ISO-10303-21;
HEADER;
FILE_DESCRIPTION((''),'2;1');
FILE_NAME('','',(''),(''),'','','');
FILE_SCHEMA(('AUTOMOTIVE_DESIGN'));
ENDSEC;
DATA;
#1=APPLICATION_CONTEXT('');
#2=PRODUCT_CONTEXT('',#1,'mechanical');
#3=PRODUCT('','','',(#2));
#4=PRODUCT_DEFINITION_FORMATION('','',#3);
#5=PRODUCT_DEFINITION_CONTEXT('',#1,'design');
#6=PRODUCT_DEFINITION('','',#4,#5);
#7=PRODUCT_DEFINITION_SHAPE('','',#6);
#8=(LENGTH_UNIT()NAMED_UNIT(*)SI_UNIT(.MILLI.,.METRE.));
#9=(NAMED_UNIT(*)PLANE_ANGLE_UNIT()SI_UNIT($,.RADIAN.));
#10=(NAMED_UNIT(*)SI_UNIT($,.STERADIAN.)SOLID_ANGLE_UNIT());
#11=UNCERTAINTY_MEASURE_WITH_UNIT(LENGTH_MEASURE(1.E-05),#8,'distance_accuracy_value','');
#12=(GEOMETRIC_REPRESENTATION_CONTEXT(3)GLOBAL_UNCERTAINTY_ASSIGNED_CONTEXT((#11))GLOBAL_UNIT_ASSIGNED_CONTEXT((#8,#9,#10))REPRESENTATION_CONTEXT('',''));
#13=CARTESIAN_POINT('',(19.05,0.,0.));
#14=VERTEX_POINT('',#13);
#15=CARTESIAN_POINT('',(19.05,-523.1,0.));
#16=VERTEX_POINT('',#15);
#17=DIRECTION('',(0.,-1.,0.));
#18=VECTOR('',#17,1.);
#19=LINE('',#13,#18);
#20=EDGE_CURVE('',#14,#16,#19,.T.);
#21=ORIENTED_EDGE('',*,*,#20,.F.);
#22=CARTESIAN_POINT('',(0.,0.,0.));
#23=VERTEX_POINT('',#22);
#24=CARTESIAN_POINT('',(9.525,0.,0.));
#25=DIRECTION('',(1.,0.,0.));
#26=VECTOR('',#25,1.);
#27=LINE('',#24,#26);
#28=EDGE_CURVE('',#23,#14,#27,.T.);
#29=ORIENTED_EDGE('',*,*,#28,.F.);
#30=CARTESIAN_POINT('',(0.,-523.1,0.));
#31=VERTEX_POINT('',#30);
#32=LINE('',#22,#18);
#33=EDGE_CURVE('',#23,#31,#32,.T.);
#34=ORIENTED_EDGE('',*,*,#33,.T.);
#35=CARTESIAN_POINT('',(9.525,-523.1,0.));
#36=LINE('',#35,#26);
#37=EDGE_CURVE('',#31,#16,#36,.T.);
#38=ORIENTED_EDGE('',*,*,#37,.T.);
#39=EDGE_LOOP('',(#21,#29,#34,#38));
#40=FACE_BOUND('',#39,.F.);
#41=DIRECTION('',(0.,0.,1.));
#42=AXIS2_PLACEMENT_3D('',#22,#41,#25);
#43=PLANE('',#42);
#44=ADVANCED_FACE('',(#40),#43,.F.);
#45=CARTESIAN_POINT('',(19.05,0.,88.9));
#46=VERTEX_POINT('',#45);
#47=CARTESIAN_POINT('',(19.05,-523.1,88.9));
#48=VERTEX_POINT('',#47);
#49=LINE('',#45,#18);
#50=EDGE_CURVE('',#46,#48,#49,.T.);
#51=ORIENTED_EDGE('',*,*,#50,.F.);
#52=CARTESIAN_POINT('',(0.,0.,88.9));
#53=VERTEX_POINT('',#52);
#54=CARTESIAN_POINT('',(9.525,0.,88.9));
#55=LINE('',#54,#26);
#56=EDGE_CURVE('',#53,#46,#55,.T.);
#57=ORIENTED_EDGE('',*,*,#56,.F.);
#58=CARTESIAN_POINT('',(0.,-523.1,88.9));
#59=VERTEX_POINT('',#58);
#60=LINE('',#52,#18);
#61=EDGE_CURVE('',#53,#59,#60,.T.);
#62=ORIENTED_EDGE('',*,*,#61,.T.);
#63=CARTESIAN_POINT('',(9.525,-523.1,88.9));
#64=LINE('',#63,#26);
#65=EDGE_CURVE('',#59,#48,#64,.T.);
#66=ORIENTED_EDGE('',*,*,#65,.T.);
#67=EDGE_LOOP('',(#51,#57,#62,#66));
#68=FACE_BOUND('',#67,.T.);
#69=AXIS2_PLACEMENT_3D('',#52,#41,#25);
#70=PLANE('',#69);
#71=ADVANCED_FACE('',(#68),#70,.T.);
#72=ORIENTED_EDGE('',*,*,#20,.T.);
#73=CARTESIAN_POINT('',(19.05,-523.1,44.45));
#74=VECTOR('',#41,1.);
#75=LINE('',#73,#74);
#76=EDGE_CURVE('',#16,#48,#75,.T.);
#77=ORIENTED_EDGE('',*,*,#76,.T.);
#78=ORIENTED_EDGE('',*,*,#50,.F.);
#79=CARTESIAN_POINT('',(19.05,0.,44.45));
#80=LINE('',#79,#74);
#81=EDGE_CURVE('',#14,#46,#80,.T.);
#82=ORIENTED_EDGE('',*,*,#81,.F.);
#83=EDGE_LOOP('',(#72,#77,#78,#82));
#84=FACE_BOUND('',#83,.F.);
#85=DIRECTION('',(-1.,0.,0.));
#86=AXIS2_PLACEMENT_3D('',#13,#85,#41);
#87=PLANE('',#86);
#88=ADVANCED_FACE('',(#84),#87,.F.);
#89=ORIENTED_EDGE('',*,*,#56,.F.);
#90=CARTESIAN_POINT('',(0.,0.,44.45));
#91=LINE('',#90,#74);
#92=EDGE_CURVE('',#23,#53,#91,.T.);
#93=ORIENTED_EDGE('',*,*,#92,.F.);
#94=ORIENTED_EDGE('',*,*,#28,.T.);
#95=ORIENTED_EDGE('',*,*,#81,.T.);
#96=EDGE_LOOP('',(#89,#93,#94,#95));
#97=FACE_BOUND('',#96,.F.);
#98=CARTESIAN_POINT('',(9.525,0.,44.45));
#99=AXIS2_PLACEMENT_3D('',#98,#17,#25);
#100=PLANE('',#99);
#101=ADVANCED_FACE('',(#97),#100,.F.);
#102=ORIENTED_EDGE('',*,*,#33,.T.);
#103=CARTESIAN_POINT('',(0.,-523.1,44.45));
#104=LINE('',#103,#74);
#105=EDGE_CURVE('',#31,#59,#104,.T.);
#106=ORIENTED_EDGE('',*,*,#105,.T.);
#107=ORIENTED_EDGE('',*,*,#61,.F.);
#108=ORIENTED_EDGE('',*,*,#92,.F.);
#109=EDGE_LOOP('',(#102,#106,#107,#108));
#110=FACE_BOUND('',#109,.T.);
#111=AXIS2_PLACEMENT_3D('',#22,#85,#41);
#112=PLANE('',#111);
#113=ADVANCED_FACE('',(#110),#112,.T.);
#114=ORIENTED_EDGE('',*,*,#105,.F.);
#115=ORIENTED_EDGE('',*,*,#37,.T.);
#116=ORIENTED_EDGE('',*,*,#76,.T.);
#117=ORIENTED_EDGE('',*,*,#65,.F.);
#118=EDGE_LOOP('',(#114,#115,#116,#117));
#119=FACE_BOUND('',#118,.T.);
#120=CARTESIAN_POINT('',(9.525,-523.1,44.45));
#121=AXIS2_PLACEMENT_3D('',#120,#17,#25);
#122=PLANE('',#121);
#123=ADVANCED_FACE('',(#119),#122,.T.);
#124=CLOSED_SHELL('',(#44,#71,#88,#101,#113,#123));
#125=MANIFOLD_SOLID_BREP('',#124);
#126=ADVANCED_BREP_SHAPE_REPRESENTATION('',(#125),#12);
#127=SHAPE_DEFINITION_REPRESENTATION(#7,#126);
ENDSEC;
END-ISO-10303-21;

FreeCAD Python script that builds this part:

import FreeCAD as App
import Part
import Sketcher
Q = App.Units.Quantity


def add_polygon(sketch, points):
    """Adds a closed chain of lines whose ends are joined by coincident constraints."""
    first, n = sketch.GeometryCount, len(points)
    for a, b in zip(points, points[1:] + points[:1]):
        sketch.addGeometry(Part.LineSegment(App.Vector(*a, 0), App.Vector(*b, 0)), False)
    for i in range(n):
        sketch.addConstraint(Sketcher.Constraint("Coincident", first + i, 2, first + (i + 1) % n, 1))

doc = App.newDocument("Part")
body = doc.addObject("PartDesign::Body", "Body")

sketch1 = doc.addObject("Sketcher::SketchObject", "Sketch")
body.addObject(sketch1)
sketch1.AttachmentSupport = (doc.XZ_Plane, [""])
sketch1.MapMode = "FlatFace"
add_polygon(sketch1, [(0, 89), (0, 0), (19, 0), (19, 89)])
sketch1.addConstraint(Sketcher.Constraint("Vertical", 0))
sketch1.addConstraint(Sketcher.Constraint("Horizontal", 1))
sketch1.addConstraint(Sketcher.Constraint("Vertical", 2))
sketch1.addConstraint(Sketcher.Constraint("Horizontal", 3))
sketch1.addConstraint(Sketcher.Constraint("Coincident", 0, 2, -1, 1))
sketch1.addConstraint(Sketcher.Constraint("DistanceY", 0, 2, 0, 1, Q("3.5 in")))
sketch1.addConstraint(Sketcher.Constraint("DistanceX", 1, 1, 1, 2, Q("0.75 in")))
pad1 = doc.addObject("PartDesign::Pad", "Pad")
body.addObject(pad1)
pad1.Profile = sketch1
pad1.Length = 523.1

doc.recompute()
